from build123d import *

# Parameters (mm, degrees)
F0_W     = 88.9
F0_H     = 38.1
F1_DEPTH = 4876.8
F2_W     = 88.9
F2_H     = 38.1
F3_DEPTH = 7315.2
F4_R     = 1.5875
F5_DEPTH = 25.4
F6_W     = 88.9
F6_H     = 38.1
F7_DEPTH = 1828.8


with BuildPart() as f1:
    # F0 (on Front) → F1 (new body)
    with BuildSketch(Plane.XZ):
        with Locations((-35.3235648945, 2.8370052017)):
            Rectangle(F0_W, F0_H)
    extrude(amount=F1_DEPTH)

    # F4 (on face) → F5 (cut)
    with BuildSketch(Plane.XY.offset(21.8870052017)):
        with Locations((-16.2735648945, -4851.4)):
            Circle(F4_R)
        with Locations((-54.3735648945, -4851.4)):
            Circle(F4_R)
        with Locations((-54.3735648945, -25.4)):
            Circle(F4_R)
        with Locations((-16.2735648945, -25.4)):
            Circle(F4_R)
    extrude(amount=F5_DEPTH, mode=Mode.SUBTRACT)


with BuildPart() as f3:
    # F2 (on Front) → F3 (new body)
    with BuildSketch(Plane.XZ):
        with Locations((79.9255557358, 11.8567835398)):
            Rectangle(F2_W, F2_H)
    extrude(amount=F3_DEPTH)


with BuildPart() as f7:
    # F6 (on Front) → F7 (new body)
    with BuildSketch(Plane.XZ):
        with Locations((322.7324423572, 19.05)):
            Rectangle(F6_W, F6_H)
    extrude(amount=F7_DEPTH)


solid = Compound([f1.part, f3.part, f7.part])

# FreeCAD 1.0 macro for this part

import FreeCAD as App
import Part
import Sketcher
from FreeCAD import Vector
Q = App.Units.Quantity

doc = App.newDocument("Part")
body = doc.addObject("PartDesign::Body", "Body")

# Sketch on XZ plane
sketch1 = body.newObject("Sketcher::SketchObject", "Sketch")
sketch1.AttachmentSupport = (doc.getObject("XZ_Plane"), [""])
sketch1.MapMode = "FlatFace"
sketch1.addGeometry([
    Part.LineSegment(Vector(-79.773565, 21.887005, 0), Vector(-79.773565, -16.212995, 0)),
    Part.LineSegment(Vector(-79.773565, -16.212995, 0), Vector(9.126435, -16.212995, 0)),
    Part.LineSegment(Vector(9.126435, -16.212995, 0), Vector(9.126435, 21.887005, 0)),
    Part.LineSegment(Vector(9.126435, 21.887005, 0), Vector(-79.773565, 21.887005, 0)),
], False)
sketch1.addConstraint([
    Sketcher.Constraint("Coincident", 0, 2, 1, 1),
    Sketcher.Constraint("Coincident", 1, 2, 2, 1),
    Sketcher.Constraint("Coincident", 2, 2, 3, 1),
    Sketcher.Constraint("Coincident", 3, 2, 0, 1),
    Sketcher.Constraint("Vertical", 0),
    Sketcher.Constraint("Horizontal", 1),
    Sketcher.Constraint("Vertical", 2),
    Sketcher.Constraint("Horizontal", 3),
    Sketcher.Constraint("DistanceX", 1, 1, 1, 2, Q("3.5 in")),
    Sketcher.Constraint("DistanceY", 0, 2, 0, 1, Q("1.5 in")),
    Sketcher.Constraint("DistanceX", 0, 2, -1, 1, 79.773565),
    Sketcher.Constraint("DistanceY", 0, 2, -1, 1, 16.212995),
])
pad1 = body.newObject("PartDesign::Pad", "Pad")
pad1.Profile = sketch1
pad1.Length = Q("192 in")

# Sketch on XY plane
sketch2 = body.newObject("Sketcher::SketchObject", "Sketch001")
sketch2.AttachmentSupport = (doc.getObject("XY_Plane"), [""])
sketch2.MapMode = "FlatFace"
sketch2.AttachmentOffset = App.Placement(Vector(0, 0, 21.887005), App.Rotation())
sketch2.addGeometry([
    Part.Circle(Vector(-16.273565, -4851.4, 0), Vector(0, 0, 1), 1.5875),
    Part.Circle(Vector(-54.373565, -4851.4, 0), Vector(0, 0, 1), 1.5875),
    Part.Circle(Vector(-54.373565, -25.4, 0), Vector(0, 0, 1), 1.5875),
    Part.Circle(Vector(-16.273565, -25.4, 0), Vector(0, 0, 1), 1.5875),
], False)
sketch2.addConstraint([
    Sketcher.Constraint("Equal", 0, 1),
    Sketcher.Constraint("Equal", 1, 2),
    Sketcher.Constraint("Equal", 2, 3),
    Sketcher.Constraint("Horizontal", 0, 3, 1, 3),
    Sketcher.Constraint("Horizontal", 2, 3, 3, 3),
    Sketcher.Constraint("Vertical", 1, 3, 2, 3),
    Sketcher.Constraint("Vertical", 0, 3, 3, 3),
    Sketcher.Constraint("Diameter", 0, Q("0.125 in")),
    Sketcher.Constraint("DistanceY", 0, 3, -1, 1, Q("191 in")),
    Sketcher.Constraint("DistanceY", 2, 3, -1, 1, Q("1 in")),
    Sketcher.Constraint("DistanceX", 1, 3, 0, 3, Q("1.5 in")),
    Sketcher.Constraint("DistanceX", 0, 3, -1, 1, 16.273565),
])
pocket1 = body.newObject("PartDesign::Pocket", "Pocket")
pocket1.Profile = sketch2
pocket1.Length = Q("1 in")
pocket1.Reversed = True
body2 = doc.addObject("PartDesign::Body", "Body001")

# Sketch on XZ plane
sketch3 = body2.newObject("Sketcher::SketchObject", "Sketch002")
sketch3.AttachmentSupport = (doc.getObject("XZ_Plane001"), [""])
sketch3.MapMode = "FlatFace"
sketch3.addGeometry([
    Part.LineSegment(Vector(35.475556, 30.906784, 0), Vector(35.475556, -7.193216, 0)),
    Part.LineSegment(Vector(35.475556, -7.193216, 0), Vector(124.375556, -7.193216, 0)),
    Part.LineSegment(Vector(124.375556, -7.193216, 0), Vector(124.375556, 30.906784, 0)),
    Part.LineSegment(Vector(124.375556, 30.906784, 0), Vector(35.475556, 30.906784, 0)),
], False)
sketch3.addConstraint([
    Sketcher.Constraint("Coincident", 0, 2, 1, 1),
    Sketcher.Constraint("Coincident", 1, 2, 2, 1),
    Sketcher.Constraint("Coincident", 2, 2, 3, 1),
    Sketcher.Constraint("Coincident", 3, 2, 0, 1),
    Sketcher.Constraint("Vertical", 0),
    Sketcher.Constraint("Horizontal", 1),
    Sketcher.Constraint("Vertical", 2),
    Sketcher.Constraint("Horizontal", 3),
    Sketcher.Constraint("DistanceX", 1, 1, 1, 2, Q("3.5 in")),
    Sketcher.Constraint("DistanceY", 0, 2, 0, 1, Q("1.5 in")),
    Sketcher.Constraint("DistanceX", -1, 1, 0, 2, 35.475556),
    Sketcher.Constraint("DistanceY", 0, 2, -1, 1, 7.193216),
])
pad2 = body2.newObject("PartDesign::Pad", "Pad001")
pad2.Profile = sketch3
pad2.Length = Q("288 in")
body3 = doc.addObject("PartDesign::Body", "Body002")

# Sketch on XZ plane
sketch4 = body3.newObject("Sketcher::SketchObject", "Sketch003")
sketch4.AttachmentSupport = (doc.getObject("XZ_Plane002"), [""])
sketch4.MapMode = "FlatFace"
sketch4.addGeometry([
    Part.LineSegment(Vector(278.282442, 38.1, 0), Vector(278.282442, 0, 0)),
    Part.LineSegment(Vector(278.282442, 0, 0), Vector(367.182442, 0, 0)),
    Part.LineSegment(Vector(367.182442, 0, 0), Vector(367.182442, 38.1, 0)),
    Part.LineSegment(Vector(367.182442, 38.1, 0), Vector(278.282442, 38.1, 0)),
], False)
sketch4.addConstraint([
    Sketcher.Constraint("Coincident", 0, 2, 1, 1),
    Sketcher.Constraint("Coincident", 1, 2, 2, 1),
    Sketcher.Constraint("Coincident", 2, 2, 3, 1),
    Sketcher.Constraint("Coincident", 3, 2, 0, 1),
    Sketcher.Constraint("Vertical", 0),
    Sketcher.Constraint("Horizontal", 1),
    Sketcher.Constraint("Vertical", 2),
    Sketcher.Constraint("Horizontal", 3),
    Sketcher.Constraint("PointOnObject", 0, 2, -1),
    Sketcher.Constraint("DistanceX", 1, 1, 1, 2, Q("3.5 in")),
    Sketcher.Constraint("DistanceY", 0, 2, 0, 1, Q("1.5 in")),
    Sketcher.Constraint("DistanceX", -1, 1, 0, 2, 278.282442),
])
pad3 = body3.newObject("PartDesign::Pad", "Pad002")
pad3.Profile = sketch4
pad3.Length = Q("72 in")

doc.recompute()
